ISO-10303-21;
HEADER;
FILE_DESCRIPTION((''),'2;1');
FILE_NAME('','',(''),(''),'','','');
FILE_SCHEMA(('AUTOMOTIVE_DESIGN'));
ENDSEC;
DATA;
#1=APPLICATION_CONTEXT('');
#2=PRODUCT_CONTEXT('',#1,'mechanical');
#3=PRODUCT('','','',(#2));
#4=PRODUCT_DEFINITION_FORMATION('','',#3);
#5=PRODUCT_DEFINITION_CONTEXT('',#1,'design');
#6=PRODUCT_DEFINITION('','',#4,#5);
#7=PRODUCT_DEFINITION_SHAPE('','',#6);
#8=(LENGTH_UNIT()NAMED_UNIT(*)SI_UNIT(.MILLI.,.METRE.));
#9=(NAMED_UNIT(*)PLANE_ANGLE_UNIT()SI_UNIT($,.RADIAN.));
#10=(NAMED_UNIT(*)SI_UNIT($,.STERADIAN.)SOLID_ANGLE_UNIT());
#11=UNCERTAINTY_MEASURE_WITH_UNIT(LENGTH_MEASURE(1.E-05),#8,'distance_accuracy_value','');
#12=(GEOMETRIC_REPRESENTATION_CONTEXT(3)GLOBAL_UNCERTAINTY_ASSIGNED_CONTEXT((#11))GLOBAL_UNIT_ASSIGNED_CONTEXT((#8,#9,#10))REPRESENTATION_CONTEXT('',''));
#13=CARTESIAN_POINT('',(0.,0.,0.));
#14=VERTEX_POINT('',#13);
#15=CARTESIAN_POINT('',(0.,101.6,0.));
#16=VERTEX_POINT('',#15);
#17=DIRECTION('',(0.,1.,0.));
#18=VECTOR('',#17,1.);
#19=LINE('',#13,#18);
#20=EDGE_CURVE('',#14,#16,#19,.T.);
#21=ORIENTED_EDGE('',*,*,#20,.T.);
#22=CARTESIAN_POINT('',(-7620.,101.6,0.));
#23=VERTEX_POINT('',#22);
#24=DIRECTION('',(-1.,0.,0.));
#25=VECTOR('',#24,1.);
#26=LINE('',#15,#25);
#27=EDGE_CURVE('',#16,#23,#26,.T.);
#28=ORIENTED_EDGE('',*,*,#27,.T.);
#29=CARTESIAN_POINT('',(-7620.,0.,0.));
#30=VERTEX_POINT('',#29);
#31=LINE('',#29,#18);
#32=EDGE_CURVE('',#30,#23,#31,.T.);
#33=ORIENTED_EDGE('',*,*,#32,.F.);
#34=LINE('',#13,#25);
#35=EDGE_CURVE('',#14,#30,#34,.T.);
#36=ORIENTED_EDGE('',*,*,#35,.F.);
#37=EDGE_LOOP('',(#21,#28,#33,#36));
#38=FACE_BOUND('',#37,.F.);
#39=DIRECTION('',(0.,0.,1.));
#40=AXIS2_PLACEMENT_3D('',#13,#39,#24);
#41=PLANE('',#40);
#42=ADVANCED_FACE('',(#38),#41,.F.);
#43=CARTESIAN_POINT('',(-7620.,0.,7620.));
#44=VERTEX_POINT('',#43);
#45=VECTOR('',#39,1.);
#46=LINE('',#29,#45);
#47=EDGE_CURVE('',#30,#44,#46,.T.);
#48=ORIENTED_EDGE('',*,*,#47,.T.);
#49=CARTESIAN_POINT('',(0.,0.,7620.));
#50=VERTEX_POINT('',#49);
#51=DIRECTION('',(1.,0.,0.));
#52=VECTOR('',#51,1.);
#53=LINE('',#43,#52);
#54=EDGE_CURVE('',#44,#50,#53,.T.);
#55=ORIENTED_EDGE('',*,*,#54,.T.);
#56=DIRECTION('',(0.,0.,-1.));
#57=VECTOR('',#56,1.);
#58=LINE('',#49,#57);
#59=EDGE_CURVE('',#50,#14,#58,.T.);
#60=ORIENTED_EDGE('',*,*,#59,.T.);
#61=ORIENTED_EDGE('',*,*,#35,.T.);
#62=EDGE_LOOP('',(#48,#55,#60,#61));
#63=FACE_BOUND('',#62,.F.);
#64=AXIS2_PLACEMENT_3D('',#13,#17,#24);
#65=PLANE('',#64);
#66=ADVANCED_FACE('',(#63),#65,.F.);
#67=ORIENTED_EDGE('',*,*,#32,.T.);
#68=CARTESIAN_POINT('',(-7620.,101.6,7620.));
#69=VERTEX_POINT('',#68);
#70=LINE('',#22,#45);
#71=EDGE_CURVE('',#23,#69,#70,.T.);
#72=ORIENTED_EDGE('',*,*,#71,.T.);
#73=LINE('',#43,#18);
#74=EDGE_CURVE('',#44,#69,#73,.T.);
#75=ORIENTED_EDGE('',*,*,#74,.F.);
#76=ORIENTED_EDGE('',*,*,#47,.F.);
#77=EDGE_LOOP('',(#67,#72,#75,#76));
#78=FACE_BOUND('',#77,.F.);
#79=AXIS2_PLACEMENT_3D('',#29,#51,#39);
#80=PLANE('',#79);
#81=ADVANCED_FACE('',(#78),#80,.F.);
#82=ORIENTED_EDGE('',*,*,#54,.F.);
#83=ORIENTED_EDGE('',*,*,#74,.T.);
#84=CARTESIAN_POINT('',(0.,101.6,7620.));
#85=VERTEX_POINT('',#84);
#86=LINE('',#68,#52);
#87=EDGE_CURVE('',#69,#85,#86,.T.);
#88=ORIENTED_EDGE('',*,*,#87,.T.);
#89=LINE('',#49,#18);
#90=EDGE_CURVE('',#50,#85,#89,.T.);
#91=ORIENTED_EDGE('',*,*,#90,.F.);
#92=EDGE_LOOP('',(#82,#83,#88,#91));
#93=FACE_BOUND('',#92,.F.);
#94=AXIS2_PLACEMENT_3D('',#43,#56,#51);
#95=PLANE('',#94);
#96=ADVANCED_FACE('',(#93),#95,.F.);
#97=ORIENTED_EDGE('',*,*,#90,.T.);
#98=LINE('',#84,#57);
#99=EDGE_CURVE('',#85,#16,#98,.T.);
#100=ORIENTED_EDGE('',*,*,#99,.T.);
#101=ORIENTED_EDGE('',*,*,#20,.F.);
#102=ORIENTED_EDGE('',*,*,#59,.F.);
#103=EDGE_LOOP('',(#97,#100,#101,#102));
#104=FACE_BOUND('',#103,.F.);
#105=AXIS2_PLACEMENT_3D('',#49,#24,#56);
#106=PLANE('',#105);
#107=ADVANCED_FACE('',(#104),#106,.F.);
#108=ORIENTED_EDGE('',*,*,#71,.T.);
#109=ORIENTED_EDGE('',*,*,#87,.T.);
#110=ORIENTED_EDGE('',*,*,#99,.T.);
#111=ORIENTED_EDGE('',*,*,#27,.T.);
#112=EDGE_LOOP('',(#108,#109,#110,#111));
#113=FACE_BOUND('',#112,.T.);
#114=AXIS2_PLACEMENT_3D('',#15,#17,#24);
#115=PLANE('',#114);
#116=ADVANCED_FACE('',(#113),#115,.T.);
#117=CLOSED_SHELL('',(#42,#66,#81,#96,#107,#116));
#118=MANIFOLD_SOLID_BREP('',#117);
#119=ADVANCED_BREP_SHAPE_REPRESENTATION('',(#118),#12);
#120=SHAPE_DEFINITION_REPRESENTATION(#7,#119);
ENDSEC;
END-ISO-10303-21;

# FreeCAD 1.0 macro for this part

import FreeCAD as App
import Part
import Sketcher
from FreeCAD import Vector
Q = App.Units.Quantity


def add_polygon(sketch, points):
    """Adds a closed chain of lines whose ends are joined by coincident constraints."""
    first, n = sketch.GeometryCount, len(points)
    for a, b in zip(points, points[1:] + points[:1]):
        sketch.addGeometry(Part.LineSegment(App.Vector(*a, 0), App.Vector(*b, 0)), False)
    for i in range(n):
        sketch.addConstraint(Sketcher.Constraint("Coincident", first + i, 2, first + (i + 1) % n, 1))

doc = App.newDocument("Part")
body = doc.addObject("PartDesign::Body", "Body")

# Sketch on XZ plane
sketch1 = body.newObject("Sketcher::SketchObject", "Sketch")
sketch1.AttachmentSupport = (doc.getObject("XZ_Plane"), [""])
sketch1.MapMode = "FlatFace"
add_polygon(sketch1, [(0, 7620), (0, 0), (-7620, 0), (-7620, 7620)])  # lines 0-3
sketch1.addConstraint(Sketcher.Constraint("Vertical", 0))
sketch1.addConstraint(Sketcher.Constraint("Horizontal", 1))
sketch1.addConstraint(Sketcher.Constraint("Vertical", 2))
sketch1.addConstraint(Sketcher.Constraint("Horizontal", 3))
sketch1.addConstraint(Sketcher.Constraint("Coincident", 0, 2, -1, 1))
sketch1.addConstraint(Sketcher.Constraint("Equal", 3, 0))
sketch1.addConstraint(Sketcher.Constraint("DistanceX", 1, 2, 1, 1, Q("300 in")))
pad1 = body.newObject("PartDesign::Pad", "Pad")
pad1.Profile = sketch1
pad1.Length = Q("4 in")
pad1.Reversed = True

doc.recompute()
